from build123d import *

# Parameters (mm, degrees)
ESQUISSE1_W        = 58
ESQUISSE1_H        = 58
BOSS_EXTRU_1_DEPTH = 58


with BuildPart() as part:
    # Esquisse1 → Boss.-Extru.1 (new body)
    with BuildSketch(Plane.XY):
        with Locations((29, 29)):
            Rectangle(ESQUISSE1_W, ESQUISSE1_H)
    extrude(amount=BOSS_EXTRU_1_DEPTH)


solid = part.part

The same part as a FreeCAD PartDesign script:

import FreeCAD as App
import Part
import Sketcher
Q = App.Units.Quantity


def add_polygon(sketch, points):
    """Adds a closed chain of lines whose ends are joined by coincident constraints."""
    first, n = sketch.GeometryCount, len(points)
    for a, b in zip(points, points[1:] + points[:1]):
        sketch.addGeometry(Part.LineSegment(App.Vector(*a, 0), App.Vector(*b, 0)), False)
    for i in range(n):
        sketch.addConstraint(Sketcher.Constraint("Coincident", first + i, 2, first + (i + 1) % n, 1))

doc = App.newDocument("Part")
body = doc.addObject("PartDesign::Body", "Body")

sketch1 = body.newObject("Sketcher::SketchObject", "Sketch")
sketch1.AttachmentSupport = (doc.getObject("XY_Plane"), [""])
sketch1.MapMode = "FlatFace"
add_polygon(sketch1, [(0, 58), (0, 0), (58, 0), (58, 58)])
sketch1.addConstraint([
    Sketcher.Constraint("Vertical", 0),
    Sketcher.Constraint("Horizontal", 1),
    Sketcher.Constraint("Vertical", 2),
    Sketcher.Constraint("Horizontal", 3),
    Sketcher.Constraint("Coincident", 0, 2, -1, 1),
    Sketcher.Constraint("Equal", 3, 0),
    Sketcher.Constraint("DistanceX", 1, 1, 1, 2, Q("58 mm")),
])
pad1 = body.newObject("PartDesign::Pad", "Pad")
pad1.Profile = sketch1
pad1.Length = 58

doc.recompute()
